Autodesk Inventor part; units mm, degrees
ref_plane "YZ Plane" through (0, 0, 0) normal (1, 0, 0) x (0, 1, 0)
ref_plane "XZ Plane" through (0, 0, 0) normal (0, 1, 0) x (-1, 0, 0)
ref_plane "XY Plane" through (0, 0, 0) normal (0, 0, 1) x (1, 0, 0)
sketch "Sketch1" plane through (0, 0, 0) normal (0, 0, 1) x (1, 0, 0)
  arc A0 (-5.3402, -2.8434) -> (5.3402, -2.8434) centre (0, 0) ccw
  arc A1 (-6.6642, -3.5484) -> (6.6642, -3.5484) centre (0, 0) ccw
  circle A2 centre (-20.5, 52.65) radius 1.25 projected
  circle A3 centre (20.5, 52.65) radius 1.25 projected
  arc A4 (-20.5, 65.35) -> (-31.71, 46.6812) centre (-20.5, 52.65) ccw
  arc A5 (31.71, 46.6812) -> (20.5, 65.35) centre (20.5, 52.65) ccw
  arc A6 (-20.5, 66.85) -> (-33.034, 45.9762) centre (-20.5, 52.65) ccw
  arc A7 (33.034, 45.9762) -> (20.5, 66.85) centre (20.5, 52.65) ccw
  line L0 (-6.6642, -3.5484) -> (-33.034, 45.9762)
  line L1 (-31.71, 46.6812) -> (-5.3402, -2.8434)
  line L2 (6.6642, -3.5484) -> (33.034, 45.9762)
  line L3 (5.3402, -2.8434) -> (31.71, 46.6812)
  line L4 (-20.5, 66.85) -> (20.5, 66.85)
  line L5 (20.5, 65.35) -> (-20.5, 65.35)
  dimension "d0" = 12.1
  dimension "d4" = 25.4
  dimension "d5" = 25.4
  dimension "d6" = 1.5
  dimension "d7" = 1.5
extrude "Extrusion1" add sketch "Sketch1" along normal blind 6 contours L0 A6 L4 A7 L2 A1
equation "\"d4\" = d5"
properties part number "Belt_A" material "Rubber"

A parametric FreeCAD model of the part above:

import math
import FreeCAD as App
import Part
import Sketcher

doc = App.newDocument("Part")
params = doc.addObject("Spreadsheet::Sheet", "Params")
for row, (alias, value) in enumerate([
    ("sketch1_radius", "12.7 mm"),
    ("sketch1_radius2", "6.05 mm"),
    ("sketch1_radius3", "14.2 mm"),
    ("sketch1_width", "41 mm"),
    ("pad1_length", "6 mm"),
], start=1):
    params.set(f"A{row}", alias)
    params.set(f"B{row}", "=" + value)
    params.setAlias(f"B{row}", alias)

body = doc.addObject("PartDesign::Body", "Body")

# Sketch on XY plane
sketch1 = body.newObject("Sketcher::SketchObject", "Sketch")
sketch1.AttachmentSupport = (doc.getObject("XY_Plane"), [""])
sketch1.MapMode = "FlatFace"
sketch1.addGeometry(Part.LineSegment(App.Vector(-33, 46, 0), App.Vector(-7, -4, 0)), False)
sketch1.addGeometry(Part.ArcOfCircle(Part.Circle(App.Vector(0, 0, 0), App.Vector(0, 0, 1), 8), math.radians(-152), math.radians(-28)), False)
sketch1.addGeometry(Part.LineSegment(App.Vector(7, -4, 0), App.Vector(33, 46, 0)), False)
sketch1.addGeometry(Part.ArcOfCircle(Part.Circle(App.Vector(20, 53, 0), App.Vector(0, 0, 1), 14), math.radians(-28), math.radians(90)), False)
sketch1.addGeometry(Part.LineSegment(App.Vector(20, 67, 0), App.Vector(-20, 67, 0)), False)
sketch1.addGeometry(Part.ArcOfCircle(Part.Circle(App.Vector(-20, 53, 0), App.Vector(0, 0, 1), 14), math.radians(90), math.radians(208)), False)
sketch1.addGeometry(Part.ArcOfCircle(Part.Circle(App.Vector(0, 0, 0), App.Vector(0, 0, 1), 6), math.radians(-152), math.radians(-28)), False)
sketch1.addGeometry(Part.LineSegment(App.Vector(-5, -3, 0), App.Vector(-32, 47, 0)), False)
sketch1.addGeometry(Part.ArcOfCircle(Part.Circle(App.Vector(-20, 53, 0), App.Vector(0, 0, 1), 13), math.radians(90), math.radians(208)), False)
sketch1.addGeometry(Part.LineSegment(App.Vector(-20, 65, 0), App.Vector(20, 65, 0)), False)
sketch1.addGeometry(Part.ArcOfCircle(Part.Circle(App.Vector(20, 53, 0), App.Vector(0, 0, 1), 13), math.radians(-28), math.radians(90)), False)
sketch1.addGeometry(Part.LineSegment(App.Vector(32, 47, 0), App.Vector(5, -3, 0)), False)
sketch1.addConstraint(Sketcher.Constraint("Tangent", 0, 2, 1, 1))
sketch1.addConstraint(Sketcher.Constraint("Tangent", 1, 2, 2, 1))
sketch1.addConstraint(Sketcher.Constraint("Tangent", 2, 2, 3, 1))
sketch1.addConstraint(Sketcher.Constraint("Tangent", 3, 2, 4, 1))
sketch1.addConstraint(Sketcher.Constraint("Tangent", 4, 2, 5, 1))
sketch1.addConstraint(Sketcher.Constraint("Tangent", 5, 2, 0, 1))
sketch1.addConstraint(Sketcher.Constraint("Tangent", 6, 1, 7, 1))
sketch1.addConstraint(Sketcher.Constraint("Tangent", 7, 2, 8, 2))
sketch1.addConstraint(Sketcher.Constraint("Tangent", 8, 1, 9, 1))
sketch1.addConstraint(Sketcher.Constraint("Tangent", 9, 2, 10, 2))
sketch1.addConstraint(Sketcher.Constraint("Tangent", 10, 1, 11, 1))
sketch1.addConstraint(Sketcher.Constraint("Tangent", 11, 2, 6, 2))
sketch1.addConstraint(Sketcher.Constraint("Horizontal", 4))
sketch1.addConstraint(Sketcher.Constraint("Horizontal", 9))
sketch1.addConstraint(Sketcher.Constraint("Coincident", 1, 3, -1, 1))
sketch1.addConstraint(Sketcher.Constraint("Coincident", 6, 3, -1, 1))
sketch1.addConstraint(Sketcher.Constraint("Coincident", 8, 3, 5, 3))
sketch1.addConstraint(Sketcher.Constraint("Coincident", 10, 3, 3, 3))
sketch1.addConstraint(Sketcher.Constraint("Equal", 3, 5))
sketch1.addConstraint(Sketcher.Constraint("Parallel", 0, 7))
sketch1.addConstraint(Sketcher.Constraint("Horizontal", 0, 2, 1, 2))
sketch1.addConstraint(Sketcher.Constraint("Radius", 8, 12.7))
sketch1.addConstraint(Sketcher.Constraint("Radius", 6, 6.05))
sketch1.addConstraint(Sketcher.Constraint("Radius", 3, 14.2))
sketch1.addConstraint(Sketcher.Constraint("DistanceX", 4, 2, 4, 1, 41.0))
sketch1.addConstraint(Sketcher.Constraint("DistanceY", -1, 1, 3, 3, 52.65))
sketch1.setExpression("Constraints[21]", "Params.sketch1_radius")
sketch1.setExpression("Constraints[22]", "Params.sketch1_radius2")
sketch1.setExpression("Constraints[23]", "Params.sketch1_radius3")
sketch1.setExpression("Constraints[24]", "Params.sketch1_width")
pad1 = body.newObject("PartDesign::Pad", "Pad")
pad1.Profile = sketch1
pad1.setExpression("Length", "Params.pad1_length")

doc.recompute()
